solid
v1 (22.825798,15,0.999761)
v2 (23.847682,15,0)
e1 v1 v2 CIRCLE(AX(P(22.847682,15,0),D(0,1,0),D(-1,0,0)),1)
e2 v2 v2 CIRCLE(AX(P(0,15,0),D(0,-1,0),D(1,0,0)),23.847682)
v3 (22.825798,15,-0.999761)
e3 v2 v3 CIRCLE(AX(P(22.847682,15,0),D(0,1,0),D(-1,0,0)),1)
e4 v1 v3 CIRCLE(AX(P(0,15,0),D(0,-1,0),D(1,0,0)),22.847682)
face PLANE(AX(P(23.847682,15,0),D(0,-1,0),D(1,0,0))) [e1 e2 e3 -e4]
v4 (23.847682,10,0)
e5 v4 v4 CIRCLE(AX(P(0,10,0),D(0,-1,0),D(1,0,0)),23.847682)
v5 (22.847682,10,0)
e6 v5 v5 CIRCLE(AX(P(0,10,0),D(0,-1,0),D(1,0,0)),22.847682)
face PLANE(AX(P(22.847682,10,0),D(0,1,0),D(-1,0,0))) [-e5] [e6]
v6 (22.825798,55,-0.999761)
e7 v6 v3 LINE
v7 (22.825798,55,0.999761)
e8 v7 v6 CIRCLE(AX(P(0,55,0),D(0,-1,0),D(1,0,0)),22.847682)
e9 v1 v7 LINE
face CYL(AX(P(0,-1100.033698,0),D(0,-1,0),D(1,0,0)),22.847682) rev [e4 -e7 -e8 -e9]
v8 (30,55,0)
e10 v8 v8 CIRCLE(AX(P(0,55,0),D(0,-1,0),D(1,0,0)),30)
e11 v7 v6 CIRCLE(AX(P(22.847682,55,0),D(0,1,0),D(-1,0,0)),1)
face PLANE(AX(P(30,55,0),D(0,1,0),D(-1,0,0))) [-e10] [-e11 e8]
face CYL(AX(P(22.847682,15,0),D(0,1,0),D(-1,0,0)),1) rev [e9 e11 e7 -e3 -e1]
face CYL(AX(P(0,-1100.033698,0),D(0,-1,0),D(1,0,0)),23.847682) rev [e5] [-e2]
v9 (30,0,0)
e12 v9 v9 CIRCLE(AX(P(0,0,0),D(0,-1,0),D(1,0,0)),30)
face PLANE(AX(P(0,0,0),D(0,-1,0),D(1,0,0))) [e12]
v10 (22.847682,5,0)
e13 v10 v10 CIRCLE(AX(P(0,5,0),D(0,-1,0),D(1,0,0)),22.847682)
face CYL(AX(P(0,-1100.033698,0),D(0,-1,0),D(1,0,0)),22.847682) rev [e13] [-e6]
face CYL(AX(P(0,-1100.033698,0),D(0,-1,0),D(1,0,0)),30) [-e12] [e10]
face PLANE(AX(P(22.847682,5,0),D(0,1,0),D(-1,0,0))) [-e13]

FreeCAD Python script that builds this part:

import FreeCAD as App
import Part
import Sketcher
from FreeCAD import Vector


def add_polygon(sketch, points):
    """Adds a closed chain of lines whose ends are joined by coincident constraints."""
    first, n = sketch.GeometryCount, len(points)
    for a, b in zip(points, points[1:] + points[:1]):
        sketch.addGeometry(Part.LineSegment(App.Vector(*a, 0), App.Vector(*b, 0)), False)
    for i in range(n):
        sketch.addConstraint(Sketcher.Constraint("Coincident", first + i, 2, first + (i + 1) % n, 1))

doc = App.newDocument("Part")
body = doc.addObject("PartDesign::Body", "Body")

# Sketch on XY plane
sketch1 = body.newObject("Sketcher::SketchObject", "Sketch")
sketch1.AttachmentSupport = (doc.getObject("XY_Plane"), [""])
sketch1.MapMode = "FlatFace"
add_polygon(sketch1, [(0, 0), (30, 0), (30, 55), (22.847682, 55), (22.847682, 15), (23.847682, 15), (23.847682, 10), (22.847682, 10), (22.847682, 5), (0, 5)])  # lines 0-9
sketch1.addConstraint([
    Sketcher.Constraint("Horizontal", 0),
    Sketcher.Constraint("Vertical", 1),
    Sketcher.Constraint("Horizontal", 2),
    Sketcher.Constraint("Vertical", 3),
    Sketcher.Constraint("Horizontal", 4),
    Sketcher.Constraint("Vertical", 5),
    Sketcher.Constraint("Horizontal", 6),
    Sketcher.Constraint("Vertical", 7),
    Sketcher.Constraint("Horizontal", 8),
    Sketcher.Constraint("Vertical", 9),
    Sketcher.Constraint("Coincident", 9, 2, -1, 1),
    Sketcher.Constraint("Vertical", 3, 2, 6, 2),
    Sketcher.Constraint("Equal", 5, 7),
    Sketcher.Constraint("Equal", 7, 9),
    Sketcher.Constraint("DistanceX", 0, 1, 0, 2, 30.0),
    Sketcher.Constraint("DistanceX", 4, 1, 4, 2, 1.0),
    Sketcher.Constraint("DistanceY", 1, 1, 1, 2, 55.0),
    Sketcher.Constraint("DistanceY", 3, 2, 3, 1, 40.0),
    Sketcher.Constraint("DistanceX", 2, 2, 2, 1, 7.152318),
])
revolution = body.newObject("PartDesign::Revolution", "Revolution")
revolution.Profile = sketch1
revolution.ReferenceAxis = (sketch1, ["V_Axis"])
revolution.Angle = 360

# Sketch on XZ plane
sketch2 = body.newObject("Sketcher::SketchObject", "Sketch001")
sketch2.AttachmentSupport = (doc.getObject("XZ_Plane"), [""])
sketch2.MapMode = "FlatFace"
sketch2.AttachmentOffset = App.Placement(Vector(0, 0, -55), App.Rotation())
sketch2.addGeometry(Part.Circle(Vector(22.847682, 0, 0), Vector(0, 0, 1), 1), False)
sketch2.addConstraint([
    Sketcher.Constraint("PointOnObject", 0, 3, -1),
    Sketcher.Constraint("Diameter", 0, 2.0),
    Sketcher.Constraint("DistanceX", -1, 1, 0, 3, 22.847682),
])
pocket1 = body.newObject("PartDesign::Pocket", "Pocket")
pocket1.Profile = sketch2
pocket1.Length = 40
pocket1.Reversed = True

doc.recompute()
